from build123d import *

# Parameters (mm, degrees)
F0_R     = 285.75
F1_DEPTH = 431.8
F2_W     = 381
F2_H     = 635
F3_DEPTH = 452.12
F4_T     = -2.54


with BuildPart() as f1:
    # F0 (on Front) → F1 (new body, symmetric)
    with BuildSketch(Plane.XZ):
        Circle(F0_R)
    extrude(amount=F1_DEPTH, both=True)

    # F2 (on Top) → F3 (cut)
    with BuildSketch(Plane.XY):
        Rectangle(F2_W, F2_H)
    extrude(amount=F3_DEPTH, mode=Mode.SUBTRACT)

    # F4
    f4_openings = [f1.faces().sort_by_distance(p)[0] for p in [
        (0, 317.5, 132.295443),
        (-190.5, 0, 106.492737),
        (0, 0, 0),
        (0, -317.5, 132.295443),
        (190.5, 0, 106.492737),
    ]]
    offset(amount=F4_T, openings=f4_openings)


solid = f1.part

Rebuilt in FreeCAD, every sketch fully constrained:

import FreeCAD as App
import Part
import Sketcher

V = App.Vector
Q = App.Units.Quantity


def faces_at(feature, points):
    """Names of the faces that lie closest to the given points."""
    faces = feature.Shape.Faces
    near = lambda p: min(range(len(faces)), key=lambda i: faces[i].distToShape(Part.Vertex(*p))[0])
    return sorted({f"Face{near(p) + 1}" for p in points})


def add_polygon(sketch, points):
    """Adds a closed chain of lines whose ends are joined by coincident constraints."""
    first, n = sketch.GeometryCount, len(points)
    for a, b in zip(points, points[1:] + points[:1]):
        sketch.addGeometry(Part.LineSegment(App.Vector(*a, 0), App.Vector(*b, 0)), False)
    for i in range(n):
        sketch.addConstraint(Sketcher.Constraint("Coincident", first + i, 2, first + (i + 1) % n, 1))

doc = App.newDocument("Part")
body = doc.addObject("PartDesign::Body", "Body")

sketch1 = body.newObject("Sketcher::SketchObject", "Sketch")
sketch1.AttachmentSupport = (doc.getObject("XZ_Plane"), [""])
sketch1.MapMode = "FlatFace"
sketch1.addGeometry(Part.Circle(V(0, 0, 0), V(0, 0, 1), 286), False)
sketch1.addConstraint([
    Sketcher.Constraint("Coincident", 0, 3, -1, 1),
    Sketcher.Constraint("Diameter", 0, Q("22.5 in")),
])
pad1 = body.newObject("PartDesign::Pad", "Pad")
pad1.Profile = sketch1
pad1.Length = Q("34 in")
pad1.Midplane = True

sketch2 = body.newObject("Sketcher::SketchObject", "Sketch001")
sketch2.AttachmentSupport = (doc.getObject("XY_Plane"), [""])
sketch2.MapMode = "FlatFace"
add_polygon(sketch2, [(-190, 318), (-190, -318), (190, -318), (190, 318)])
sketch2.addConstraint([
    Sketcher.Constraint("Vertical", 0),
    Sketcher.Constraint("Horizontal", 1),
    Sketcher.Constraint("Vertical", 2),
    Sketcher.Constraint("Horizontal", 3),
    Sketcher.Constraint("Symmetric", 0, 2, 2, 2, -1, 1),
    Sketcher.Constraint("DistanceX", 1, 1, 1, 2, Q("15 in")),
    Sketcher.Constraint("DistanceY", 0, 2, 0, 1, Q("25 in")),
])
pocket1 = body.newObject("PartDesign::Pocket", "Pocket")
pocket1.Profile = sketch2
pocket1.Length = Q("17.8 in")
pocket1.Reversed = True
doc.recompute()

thickness = body.newObject("PartDesign::Thickness", "Thickness")
thickness.Base = (pocket1, faces_at(pocket1, [
    (0, 317.5, 142.875),
    (-190.5, 0, 106.493),
    (0, 0, 0),
    (0, -317.5, 142.875),
    (190.5, 0, 106.493),
]))
thickness.Value = Q("0.1 in")
thickness.Reversed = True
thickness.Join = "Arc"

doc.recompute()
